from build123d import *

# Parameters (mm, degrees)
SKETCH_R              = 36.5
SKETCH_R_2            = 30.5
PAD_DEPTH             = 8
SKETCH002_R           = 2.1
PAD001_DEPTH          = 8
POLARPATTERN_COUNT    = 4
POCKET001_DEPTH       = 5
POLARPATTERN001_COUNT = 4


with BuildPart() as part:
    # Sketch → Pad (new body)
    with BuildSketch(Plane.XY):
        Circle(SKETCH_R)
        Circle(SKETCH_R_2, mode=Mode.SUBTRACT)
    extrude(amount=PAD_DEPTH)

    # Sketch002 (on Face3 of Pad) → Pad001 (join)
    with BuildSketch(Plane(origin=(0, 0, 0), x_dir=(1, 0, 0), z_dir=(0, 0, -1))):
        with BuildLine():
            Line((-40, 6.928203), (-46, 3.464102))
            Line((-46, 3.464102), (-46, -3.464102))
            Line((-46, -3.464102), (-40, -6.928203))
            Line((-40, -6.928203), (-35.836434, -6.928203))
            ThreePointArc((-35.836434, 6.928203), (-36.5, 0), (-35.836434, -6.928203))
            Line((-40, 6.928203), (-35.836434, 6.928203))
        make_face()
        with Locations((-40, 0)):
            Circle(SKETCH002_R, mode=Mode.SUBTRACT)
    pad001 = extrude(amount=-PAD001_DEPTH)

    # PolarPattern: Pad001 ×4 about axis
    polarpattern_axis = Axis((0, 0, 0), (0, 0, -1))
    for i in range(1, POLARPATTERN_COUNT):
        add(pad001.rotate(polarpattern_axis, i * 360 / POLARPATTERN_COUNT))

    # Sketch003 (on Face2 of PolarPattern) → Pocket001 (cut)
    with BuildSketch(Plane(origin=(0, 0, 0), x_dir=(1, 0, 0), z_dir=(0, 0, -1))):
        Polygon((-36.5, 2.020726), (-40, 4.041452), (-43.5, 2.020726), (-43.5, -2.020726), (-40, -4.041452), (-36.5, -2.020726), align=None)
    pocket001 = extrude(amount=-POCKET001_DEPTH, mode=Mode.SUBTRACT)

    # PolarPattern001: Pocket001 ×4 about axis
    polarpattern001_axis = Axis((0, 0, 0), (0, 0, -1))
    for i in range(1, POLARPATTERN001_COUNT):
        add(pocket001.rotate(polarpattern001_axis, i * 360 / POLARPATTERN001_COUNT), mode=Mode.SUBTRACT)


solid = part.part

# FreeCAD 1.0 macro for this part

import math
import FreeCAD as App
import Part
import Sketcher
Q = App.Units.Quantity

doc = App.newDocument("Part")
body = doc.addObject("PartDesign::Body", "Body")

# Sketch on XY plane
sketch1 = body.newObject("Sketcher::SketchObject", "Sketch")
sketch1.AttachmentSupport = (doc.getObject("XY_Plane"), [""])
sketch1.MapMode = "FlatFace"
sketch1.addGeometry([
    Part.Circle(App.Vector(0, 0, 0), App.Vector(0, 0, 1), 36.5),
    Part.Circle(App.Vector(0, 0, 0), App.Vector(0, 0, 1), 30.5),
], False)
sketch1.addConstraint([
    Sketcher.Constraint("Coincident", 0, 3, -1, 1),
    Sketcher.Constraint("Coincident", 1, 3, -1, 1),
    Sketcher.Constraint("Diameter", 0, 73.0),
    Sketcher.Constraint("Diameter", 1, 61.0),
])
pad1 = body.newObject("PartDesign::Pad", "Pad")
pad1.Profile = sketch1
pad1.Length = 8

# Sketch on XY plane
sketch2 = body.newObject("Sketcher::SketchObject", "Sketch001")
sketch2.AttachmentSupport = (doc.getObject("XY_Plane"), [""])
sketch2.MapMode = "FlatFace"
sketch2.addGeometry([
    Part.LineSegment(App.Vector(-40, -6.928203, 0), App.Vector(-46, -3.464102, 0)),  # 0
    Part.LineSegment(App.Vector(-46, -3.464102, 0), App.Vector(-46, 3.464102, 0)),  # 1
    Part.LineSegment(App.Vector(-46, 3.464102, 0), App.Vector(-40, 6.928203, 0)),  # 2
    Part.LineSegment(App.Vector(-40, 6.928203, 0), App.Vector(-35.836434, 6.928203, 0)),  # 3
    Part.ArcOfCircle(Part.Circle(App.Vector(-0.000001, 0, 0), App.Vector(0, 0, 1), 36.499999), math.radians(169.058083), math.radians(190.941917)),  # 4
    Part.LineSegment(App.Vector(-35.836434, -6.928203, 0), App.Vector(-40, -6.928203, 0)),  # 5
    Part.Circle(App.Vector(-40, 0, 0), App.Vector(0, 0, 1), 2.1),  # 6
], False)
sketch2.addConstraint([
    Sketcher.Constraint("Coincident", 0, 2, 1, 1),
    Sketcher.Constraint("Coincident", 1, 2, 2, 1),
    Sketcher.Constraint("Coincident", 2, 2, 3, 1),
    Sketcher.Constraint("Coincident", 3, 2, 4, 1),
    Sketcher.Constraint("Coincident", 4, 2, 5, 1),
    Sketcher.Constraint("Coincident", 5, 2, 0, 1),
    Sketcher.Constraint("Vertical", 1),
    Sketcher.Constraint("Horizontal", 3),
    Sketcher.Constraint("Horizontal", 5),
    Sketcher.Constraint("Coincident", 4, 3, -1, 1),
    Sketcher.Constraint("Symmetric", 2, 2, 5, 2, -1),
    Sketcher.Constraint("PointOnObject", 6, 3, -1),
    Sketcher.Constraint("Vertical", 6, 3, 2, 2),
    Sketcher.Constraint("Equal", 0, 2),
    Sketcher.Constraint("Diameter", 6, 4.2),
    Sketcher.Constraint("Radius", 4, 36.499999),
    Sketcher.Constraint("Angle", 0, Q("150.000004 deg")),
    Sketcher.Constraint("DistanceX", 6, 3, -1, 1, 40.0),
    Sketcher.Constraint("DistanceX", 0, 2, -1, 1, 46.0),
    Sketcher.Constraint("DistanceY", 0, 2, -1, 1, 3.464102),
])
pad2 = body.newObject("PartDesign::Pad", "Pad001")
pad2.Profile = sketch2
pad2.Length = 8
doc.recompute()

polarpattern = body.newObject("PartDesign::PolarPattern", "PolarPattern")
polarpattern.Originals = [pad2]
polarpattern.Axis = (doc.getObject("Z_Axis"), [""])
polarpattern.Angle = 360
polarpattern.Occurrences = 4
body.Tip = polarpattern

# Sketch on XY plane
sketch3 = body.newObject("Sketcher::SketchObject", "Sketch002")
sketch3.AttachmentSupport = (doc.getObject("XY_Plane"), [""])
sketch3.MapMode = "FlatFace"
sketch3.addGeometry([
    Part.LineSegment(App.Vector(-36.5, -2.020726, 0), App.Vector(-40, -4.041452, 0)),  # 0
    Part.LineSegment(App.Vector(-40, -4.041452, 0), App.Vector(-43.5, -2.020726, 0)),  # 1
    Part.LineSegment(App.Vector(-43.5, -2.020726, 0), App.Vector(-43.5, 2.020726, 0)),  # 2
    Part.LineSegment(App.Vector(-43.5, 2.020726, 0), App.Vector(-40, 4.041452, 0)),  # 3
    Part.LineSegment(App.Vector(-40, 4.041452, 0), App.Vector(-36.5, 2.020726, 0)),  # 4
    Part.LineSegment(App.Vector(-36.5, 2.020726, 0), App.Vector(-36.5, -2.020726, 0)),  # 5
], False)
sketch3.addConstraint([
    Sketcher.Constraint("Coincident", 0, 2, 1, 1),
    Sketcher.Constraint("Coincident", 1, 2, 2, 1),
    Sketcher.Constraint("Coincident", 2, 2, 3, 1),
    Sketcher.Constraint("Coincident", 3, 2, 4, 1),
    Sketcher.Constraint("Coincident", 4, 2, 5, 1),
    Sketcher.Constraint("Coincident", 5, 2, 0, 1),
    Sketcher.Constraint("Vertical", 2),
    Sketcher.Constraint("Vertical", 5),
    Sketcher.Constraint("Symmetric", 0, 2, 3, 2, -1),
    Sketcher.Constraint("Parallel", 0, 3),
    Sketcher.Constraint("Parallel", 1, 4),
    Sketcher.Constraint("Horizontal", 2, 2, 4, 2),
    Sketcher.Constraint("Horizontal", 1, 2, 5, 2),
    Sketcher.Constraint("Angle", 0, Q("-149.999999 deg")),
    Sketcher.Constraint("DistanceX", 0, 2, -1, 1, 40.0),
    Sketcher.Constraint("DistanceX", 2, 2, 4, 2, 7.0),
    Sketcher.Constraint("DistanceY", 2, 1, 2, 2, 4.041452),
])
pocket1 = body.newObject("PartDesign::Pocket", "Pocket")
pocket1.Profile = sketch3
pocket1.Length = 5
pocket1.Reversed = True
doc.recompute()

polarpattern2 = body.newObject("PartDesign::PolarPattern", "PolarPattern001")
polarpattern2.Originals = [pocket1]
polarpattern2.Axis = (doc.getObject("Z_Axis"), [""])
polarpattern2.Angle = 360
polarpattern2.Occurrences = 4
body.Tip = polarpattern2

doc.recompute()
